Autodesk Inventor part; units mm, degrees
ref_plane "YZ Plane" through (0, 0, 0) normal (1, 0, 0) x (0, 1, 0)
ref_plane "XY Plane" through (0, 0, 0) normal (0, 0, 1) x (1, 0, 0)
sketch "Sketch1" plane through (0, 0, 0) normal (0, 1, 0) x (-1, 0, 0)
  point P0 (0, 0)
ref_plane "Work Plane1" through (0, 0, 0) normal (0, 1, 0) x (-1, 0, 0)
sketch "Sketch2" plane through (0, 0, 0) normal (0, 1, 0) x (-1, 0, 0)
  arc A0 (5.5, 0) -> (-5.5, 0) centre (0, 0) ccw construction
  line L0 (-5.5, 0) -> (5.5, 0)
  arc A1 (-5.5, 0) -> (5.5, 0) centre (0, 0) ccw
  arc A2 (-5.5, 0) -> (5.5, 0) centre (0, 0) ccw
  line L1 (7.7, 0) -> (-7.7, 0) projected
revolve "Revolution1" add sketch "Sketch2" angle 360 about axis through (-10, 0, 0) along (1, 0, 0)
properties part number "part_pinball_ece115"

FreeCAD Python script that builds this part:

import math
import FreeCAD as App
import Part
import Sketcher

V = App.Vector

doc = App.newDocument("Part")
body = doc.addObject("PartDesign::Body", "Body")

# Sketch on XZ plane
sketch1 = doc.addObject("Sketcher::SketchObject", "Sketch")
body.addObject(sketch1)
sketch1.AttachmentSupport = (doc.XZ_Plane, [""])
sketch1.MapMode = "FlatFace"
sketch1.addGeometry([
    Part.LineSegment(V(-5.5, 0, 0), V(5.5, 0, 0)),
    Part.ArcOfCircle(Part.Circle(V(0, 0, 0), V(0, 0, 1), 5.5), math.radians(180), math.radians(360)),
], False)
sketch1.addConstraint([
    Sketcher.Constraint("Coincident", 0, 1, 1, 1),
    Sketcher.Constraint("Coincident", 1, 2, 0, 2),
    Sketcher.Constraint("Horizontal", 0),
    Sketcher.Constraint("Coincident", 1, 3, -1, 1),
    Sketcher.Constraint("PointOnObject", 0, 1, -1),
    Sketcher.Constraint("Radius", 1, 5.5),
])
revolution = doc.addObject("PartDesign::Revolution", "Revolution")
body.addObject(revolution)
revolution.Profile = sketch1
revolution.ReferenceAxis = (sketch1, ["H_Axis"])
revolution.Angle = 360

doc.recompute()
